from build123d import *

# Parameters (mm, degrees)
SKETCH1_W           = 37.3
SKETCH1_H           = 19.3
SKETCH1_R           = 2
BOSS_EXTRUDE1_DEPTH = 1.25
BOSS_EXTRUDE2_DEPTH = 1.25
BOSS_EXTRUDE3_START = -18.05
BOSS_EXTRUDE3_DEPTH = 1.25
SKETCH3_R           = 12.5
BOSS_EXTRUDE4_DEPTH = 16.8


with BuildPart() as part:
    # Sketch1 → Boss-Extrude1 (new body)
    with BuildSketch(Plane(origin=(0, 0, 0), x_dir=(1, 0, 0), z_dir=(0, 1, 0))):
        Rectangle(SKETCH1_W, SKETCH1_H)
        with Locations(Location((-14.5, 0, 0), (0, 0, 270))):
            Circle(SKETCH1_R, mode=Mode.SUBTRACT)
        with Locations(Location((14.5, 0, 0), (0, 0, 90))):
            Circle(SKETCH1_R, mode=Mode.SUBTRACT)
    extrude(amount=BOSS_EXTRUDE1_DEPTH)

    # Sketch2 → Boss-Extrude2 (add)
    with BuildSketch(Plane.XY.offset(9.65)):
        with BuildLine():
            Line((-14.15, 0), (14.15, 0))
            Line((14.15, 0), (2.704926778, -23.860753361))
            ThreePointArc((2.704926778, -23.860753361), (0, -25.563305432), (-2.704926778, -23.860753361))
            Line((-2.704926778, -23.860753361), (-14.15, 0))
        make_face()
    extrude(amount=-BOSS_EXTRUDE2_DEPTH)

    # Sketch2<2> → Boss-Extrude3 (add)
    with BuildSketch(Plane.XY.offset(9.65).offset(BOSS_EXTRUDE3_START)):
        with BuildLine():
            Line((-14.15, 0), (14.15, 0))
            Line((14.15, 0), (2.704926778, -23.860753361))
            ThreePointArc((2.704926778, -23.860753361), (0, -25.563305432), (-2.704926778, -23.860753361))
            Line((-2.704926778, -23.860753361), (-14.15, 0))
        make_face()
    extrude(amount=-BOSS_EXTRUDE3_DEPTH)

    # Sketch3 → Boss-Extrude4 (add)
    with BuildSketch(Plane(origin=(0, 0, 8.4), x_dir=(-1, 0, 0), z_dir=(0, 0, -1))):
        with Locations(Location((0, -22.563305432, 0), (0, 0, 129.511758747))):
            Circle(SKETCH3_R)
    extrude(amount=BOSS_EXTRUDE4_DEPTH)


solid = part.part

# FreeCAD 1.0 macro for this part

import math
import FreeCAD as App
import Part
import Sketcher


def add_polygon(sketch, points):
    """Adds a closed chain of lines whose ends are joined by coincident constraints."""
    first, n = sketch.GeometryCount, len(points)
    for a, b in zip(points, points[1:] + points[:1]):
        sketch.addGeometry(Part.LineSegment(App.Vector(*a, 0), App.Vector(*b, 0)), False)
    for i in range(n):
        sketch.addConstraint(Sketcher.Constraint("Coincident", first + i, 2, first + (i + 1) % n, 1))

doc = App.newDocument("Part")
params = doc.addObject("Spreadsheet::Sheet", "Params")
for row, (alias, value) in enumerate([
    ("sketch1_diameter", "4 mm"),
    ("sketch1_width", "37.3 mm"),
    ("sketch1_height", "19.3 mm"),
    ("pad1_length", "1.25 mm"),
    ("sketch2_radius", "3 mm"),
    ("sketch2_width", "28.3 mm"),
    ("pad2_length", "1.25 mm"),
    ("sketch3_radius", "3 mm"),
    ("sketch3_width", "28.3 mm"),
    ("pad3_length", "1.25 mm"),
    ("sketch4_diameter", "25 mm"),
    ("pad4_length", "16.8 mm"),
], start=1):
    params.set(f"A{row}", alias)
    params.set(f"B{row}", "=" + value)
    params.setAlias(f"B{row}", alias)

body = doc.addObject("PartDesign::Body", "Body")

sketch1 = body.newObject("Sketcher::SketchObject", "Sketch")
sketch1.AttachmentSupport = (doc.getObject("XZ_Plane"), [""])
sketch1.MapMode = "FlatFace"
add_polygon(sketch1, [(-18.65, -9.65), (-18.65, 9.65), (18.65, 9.65), (18.65, -9.65)])
sketch1.addGeometry(Part.Circle(App.Vector(-14.5, 0, 0), App.Vector(0, 0, 1), 2), False)
sketch1.addGeometry(Part.Circle(App.Vector(14.5, 0, 0), App.Vector(0, 0, 1), 2), False)
sketch1.addConstraint([
    Sketcher.Constraint("Vertical", 0),
    Sketcher.Constraint("Horizontal", 1),
    Sketcher.Constraint("Vertical", 2),
    Sketcher.Constraint("Horizontal", 3),
    Sketcher.Constraint("Equal", 4, 5),
    Sketcher.Constraint("Symmetric", 4, 3, 5, 3, -1, 1),
    Sketcher.Constraint("Symmetric", 0, 2, 2, 2, -1, 1),
    Sketcher.Constraint("PointOnObject", 4, 3, -1),
    Sketcher.Constraint("Diameter", 4, 4.0),
    Sketcher.Constraint("DistanceX", 1, 1, 1, 2, 37.3),
    Sketcher.Constraint("DistanceY", 0, 1, 0, 2, 19.3),
    Sketcher.Constraint("DistanceX", 4, 3, 5, 3, 29.0),
])
sketch1.setExpression("Constraints[12]", "Params.sketch1_diameter")
sketch1.setExpression("Constraints[13]", "Params.sketch1_width")
sketch1.setExpression("Constraints[14]", "Params.sketch1_height")
pad1 = body.newObject("PartDesign::Pad", "Pad")
pad1.Profile = sketch1
pad1.setExpression("Length", "Params.pad1_length")
pad1.Reversed = True

sketch2 = body.newObject("Sketcher::SketchObject", "Sketch001")
sketch2.AttachmentSupport = (doc.getObject("XY_Plane"), [""])
sketch2.MapMode = "FlatFace"
sketch2.AttachmentOffset = App.Placement(App.Vector(0, 0, 9.65), App.Rotation())
sketch2.addGeometry([
    Part.LineSegment(App.Vector(14.15, 0, 0), App.Vector(-14.15, 0, 0)),
    Part.LineSegment(App.Vector(-14.15, 0, 0), App.Vector(-2.704927, -23.860753, 0)),
    Part.ArcOfCircle(Part.Circle(App.Vector(0, -22.563305, 0), App.Vector(0, 0, 1), 3), math.radians(-154.374782), math.radians(-25.625218)),
    Part.LineSegment(App.Vector(2.704927, -23.860753, 0), App.Vector(14.15, 0, 0)),
], False)
sketch2.addConstraint([
    Sketcher.Constraint("Coincident", 0, 2, 1, 1),
    Sketcher.Constraint("Tangent", 1, 2, 2, 1),
    Sketcher.Constraint("Tangent", 2, 2, 3, 1),
    Sketcher.Constraint("Coincident", 3, 2, 0, 1),
    Sketcher.Constraint("Horizontal", 0),
    Sketcher.Constraint("Symmetric", 0, 2, 3, 2, -1, 1),
    Sketcher.Constraint("PointOnObject", 2, 3, -2),
    Sketcher.Constraint("Radius", 2, 3.0),
    Sketcher.Constraint("DistanceX", 0, 2, 0, 1, 28.3),
    Sketcher.Constraint("Distance", 1, 26.463659),
])
sketch2.setExpression("Constraints[7]", "Params.sketch2_radius")
sketch2.setExpression("Constraints[8]", "Params.sketch2_width")
pad2 = body.newObject("PartDesign::Pad", "Pad001")
pad2.Profile = sketch2
pad2.setExpression("Length", "Params.pad2_length")
pad2.Reversed = True

sketch3 = body.newObject("Sketcher::SketchObject", "Sketch002")
sketch3.AttachmentSupport = (doc.getObject("XY_Plane"), [""])
sketch3.MapMode = "FlatFace"
sketch3.AttachmentOffset = App.Placement(App.Vector(0, 0, -8.4), App.Rotation())
sketch3.addGeometry([
    Part.LineSegment(App.Vector(14.15, 0, 0), App.Vector(-14.15, 0, 0)),
    Part.LineSegment(App.Vector(-14.15, 0, 0), App.Vector(-2.704927, -23.860753, 0)),
    Part.ArcOfCircle(Part.Circle(App.Vector(0, -22.563305, 0), App.Vector(0, 0, 1), 3), math.radians(-154.374782), math.radians(-25.625218)),
    Part.LineSegment(App.Vector(2.704927, -23.860753, 0), App.Vector(14.15, 0, 0)),
], False)
sketch3.addConstraint([
    Sketcher.Constraint("Coincident", 0, 2, 1, 1),
    Sketcher.Constraint("Tangent", 1, 2, 2, 1),
    Sketcher.Constraint("Tangent", 2, 2, 3, 1),
    Sketcher.Constraint("Coincident", 3, 2, 0, 1),
    Sketcher.Constraint("Horizontal", 0),
    Sketcher.Constraint("Symmetric", 0, 2, 3, 2, -1, 1),
    Sketcher.Constraint("PointOnObject", 2, 3, -2),
    Sketcher.Constraint("Radius", 2, 3.0),
    Sketcher.Constraint("DistanceX", 0, 2, 0, 1, 28.3),
    Sketcher.Constraint("Distance", 1, 26.463659),
])
sketch3.setExpression("Constraints[7]", "Params.sketch3_radius")
sketch3.setExpression("Constraints[8]", "Params.sketch3_width")
pad3 = body.newObject("PartDesign::Pad", "Pad002")
pad3.Profile = sketch3
pad3.setExpression("Length", "Params.pad3_length")
pad3.Reversed = True

sketch4 = body.newObject("Sketcher::SketchObject", "Sketch003")
sketch4.AttachmentSupport = (doc.getObject("XY_Plane"), [""])
sketch4.MapMode = "FlatFace"
sketch4.AttachmentOffset = App.Placement(App.Vector(0, 0, 8.4), App.Rotation())
sketch4.addGeometry(Part.Circle(App.Vector(0, -22.563305, 0), App.Vector(0, 0, 1), 12.5), False)
sketch4.addConstraint([
    Sketcher.Constraint("PointOnObject", 0, 3, -2),
    Sketcher.Constraint("Diameter", 0, 25.0),
    Sketcher.Constraint("DistanceY", 0, 3, -1, 1, 22.563305),
])
sketch4.setExpression("Constraints[1]", "Params.sketch4_diameter")
pad4 = body.newObject("PartDesign::Pad", "Pad003")
pad4.Profile = sketch4
pad4.setExpression("Length", "Params.pad4_length")
pad4.Reversed = True

doc.recompute()
